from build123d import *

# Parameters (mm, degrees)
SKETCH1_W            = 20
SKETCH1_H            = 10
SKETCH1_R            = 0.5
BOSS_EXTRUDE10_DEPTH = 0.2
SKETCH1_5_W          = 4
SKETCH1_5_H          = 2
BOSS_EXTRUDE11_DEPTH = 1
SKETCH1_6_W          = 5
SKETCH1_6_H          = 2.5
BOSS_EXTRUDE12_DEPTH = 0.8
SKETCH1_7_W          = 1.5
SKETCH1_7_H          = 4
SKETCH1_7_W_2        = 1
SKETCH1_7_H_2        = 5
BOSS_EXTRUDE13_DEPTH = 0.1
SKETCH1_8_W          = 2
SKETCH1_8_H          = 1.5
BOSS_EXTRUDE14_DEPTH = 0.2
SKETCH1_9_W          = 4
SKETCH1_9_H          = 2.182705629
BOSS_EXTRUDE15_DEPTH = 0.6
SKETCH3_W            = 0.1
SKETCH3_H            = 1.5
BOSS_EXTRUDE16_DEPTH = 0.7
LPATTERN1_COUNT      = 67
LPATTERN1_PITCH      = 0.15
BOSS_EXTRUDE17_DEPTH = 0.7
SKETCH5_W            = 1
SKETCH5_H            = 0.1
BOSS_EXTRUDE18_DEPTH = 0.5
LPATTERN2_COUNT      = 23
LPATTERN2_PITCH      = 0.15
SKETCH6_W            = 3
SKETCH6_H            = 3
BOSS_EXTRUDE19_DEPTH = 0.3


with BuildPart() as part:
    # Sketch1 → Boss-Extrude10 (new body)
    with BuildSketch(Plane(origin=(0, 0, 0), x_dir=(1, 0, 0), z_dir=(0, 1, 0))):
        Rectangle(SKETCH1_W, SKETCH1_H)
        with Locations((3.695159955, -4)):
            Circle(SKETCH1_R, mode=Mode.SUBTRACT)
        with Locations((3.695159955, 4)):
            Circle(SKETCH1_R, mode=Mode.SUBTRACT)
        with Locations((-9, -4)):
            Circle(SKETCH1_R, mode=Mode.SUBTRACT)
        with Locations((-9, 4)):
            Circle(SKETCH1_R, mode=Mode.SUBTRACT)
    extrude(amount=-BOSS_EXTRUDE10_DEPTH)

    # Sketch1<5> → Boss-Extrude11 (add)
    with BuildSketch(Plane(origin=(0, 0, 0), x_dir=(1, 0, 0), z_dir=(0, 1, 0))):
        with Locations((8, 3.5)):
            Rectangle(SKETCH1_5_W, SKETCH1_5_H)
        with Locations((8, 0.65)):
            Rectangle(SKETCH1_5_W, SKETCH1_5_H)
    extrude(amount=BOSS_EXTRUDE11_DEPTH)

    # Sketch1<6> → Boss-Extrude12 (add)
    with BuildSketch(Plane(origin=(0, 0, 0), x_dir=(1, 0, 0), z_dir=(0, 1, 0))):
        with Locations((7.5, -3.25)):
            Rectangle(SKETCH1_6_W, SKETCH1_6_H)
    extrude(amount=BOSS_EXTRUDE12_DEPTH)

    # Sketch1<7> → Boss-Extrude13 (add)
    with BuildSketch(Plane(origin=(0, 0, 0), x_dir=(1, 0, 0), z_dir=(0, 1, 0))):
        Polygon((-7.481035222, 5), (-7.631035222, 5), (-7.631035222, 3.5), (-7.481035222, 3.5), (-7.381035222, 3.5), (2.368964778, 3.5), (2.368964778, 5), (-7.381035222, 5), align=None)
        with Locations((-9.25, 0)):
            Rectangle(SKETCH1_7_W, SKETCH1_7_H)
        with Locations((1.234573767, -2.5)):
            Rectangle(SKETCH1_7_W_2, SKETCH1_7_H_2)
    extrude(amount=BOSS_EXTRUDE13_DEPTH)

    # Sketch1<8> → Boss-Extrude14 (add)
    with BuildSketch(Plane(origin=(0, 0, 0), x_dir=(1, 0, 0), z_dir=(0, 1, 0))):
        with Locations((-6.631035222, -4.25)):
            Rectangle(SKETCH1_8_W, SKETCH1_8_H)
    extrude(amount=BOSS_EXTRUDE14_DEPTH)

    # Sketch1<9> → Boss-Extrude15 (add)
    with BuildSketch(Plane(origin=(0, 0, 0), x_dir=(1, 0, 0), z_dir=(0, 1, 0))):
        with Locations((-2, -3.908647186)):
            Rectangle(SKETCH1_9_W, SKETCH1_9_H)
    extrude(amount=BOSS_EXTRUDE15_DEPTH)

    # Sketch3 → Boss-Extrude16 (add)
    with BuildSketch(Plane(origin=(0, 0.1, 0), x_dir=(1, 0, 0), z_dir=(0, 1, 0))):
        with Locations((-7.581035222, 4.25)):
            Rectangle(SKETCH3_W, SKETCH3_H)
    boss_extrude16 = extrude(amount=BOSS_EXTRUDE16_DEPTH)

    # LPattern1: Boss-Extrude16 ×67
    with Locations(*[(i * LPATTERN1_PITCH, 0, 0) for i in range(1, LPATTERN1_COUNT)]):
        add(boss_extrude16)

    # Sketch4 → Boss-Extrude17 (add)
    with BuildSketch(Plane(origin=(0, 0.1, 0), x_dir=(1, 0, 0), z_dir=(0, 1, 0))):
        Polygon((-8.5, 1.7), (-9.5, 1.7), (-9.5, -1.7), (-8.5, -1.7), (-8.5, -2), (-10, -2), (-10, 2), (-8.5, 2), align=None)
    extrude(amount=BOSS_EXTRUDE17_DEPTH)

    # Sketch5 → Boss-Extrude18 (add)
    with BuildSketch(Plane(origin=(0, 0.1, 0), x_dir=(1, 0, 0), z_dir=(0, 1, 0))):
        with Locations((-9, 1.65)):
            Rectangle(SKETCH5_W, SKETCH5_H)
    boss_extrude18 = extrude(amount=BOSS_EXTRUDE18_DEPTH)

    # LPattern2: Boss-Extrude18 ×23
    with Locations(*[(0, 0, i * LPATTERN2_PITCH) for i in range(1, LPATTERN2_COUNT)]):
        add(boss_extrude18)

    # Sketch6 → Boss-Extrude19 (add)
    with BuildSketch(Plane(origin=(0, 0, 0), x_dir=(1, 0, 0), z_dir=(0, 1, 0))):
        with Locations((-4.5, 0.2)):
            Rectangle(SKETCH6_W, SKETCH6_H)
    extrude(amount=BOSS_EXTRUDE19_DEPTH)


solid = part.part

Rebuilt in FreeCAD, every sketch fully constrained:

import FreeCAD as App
import Part
import Sketcher

doc = App.newDocument("Part")
params = doc.addObject("Spreadsheet::Sheet", "Params")
for row, (alias, value) in enumerate([
    ("sketch1_diameter", "1 mm"),
    ("sketch1_width", "20 mm"),
    ("sketch1_height", "10 mm"),
    ("pad1_length", "0.2 mm"),
    ("sketch2_width", "4 mm"),
    ("sketch2_height", "2 mm"),
    ("pad2_length", "1 mm"),
    ("sketch3_width", "5 mm"),
    ("sketch3_height", "2.5 mm"),
    ("pad3_length", "0.8 mm"),
    ("sketch4_width", "10 mm"),
    ("sketch4_width2", "1 mm"),
    ("sketch4_height", "4 mm"),
    ("sketch4_height2", "5 mm"),
    ("sketch4_width3", "1.5 mm"),
    ("pad4_length", "0.1 mm"),
    ("sketch5_width", "2 mm"),
    ("sketch5_height", "1.5 mm"),
    ("pad5_length", "0.2 mm"),
    ("sketch6_width", "4 mm"),
    ("pad6_length", "0.6 mm"),
    ("sketch7_width", "0.1 mm"),
    ("sketch7_height", "1.5 mm"),
    ("pad7_length", "0.7 mm"),
    ("linearpattern_pitch", "0.15 mm"),
    ("sketch8_width", "1 mm"),
    ("sketch8_height", "4 mm"),
    ("sketch8_width2", "1.5 mm"),
    ("sketch8_height2", "0.3 mm"),
    ("pad8_length", "0.7 mm"),
    ("sketch9_width", "1 mm"),
    ("sketch9_height", "0.1 mm"),
    ("pad9_length", "0.5 mm"),
    ("linearpattern2_pitch", "0.15 mm"),
    ("sketch10_width", "3 mm"),
    ("pad10_length", "0.3 mm"),
], start=1):
    params.set(f"A{row}", alias)
    params.set(f"B{row}", "=" + value)
    params.setAlias(f"B{row}", alias)

body = doc.addObject("PartDesign::Body", "Body")

# Sketch on XZ plane
sketch1 = body.newObject("Sketcher::SketchObject", "Sketch")
sketch1.AttachmentSupport = (doc.getObject("XZ_Plane"), [""])
sketch1.MapMode = "FlatFace"
sketch1.addGeometry([
    Part.LineSegment(App.Vector(-10, -5, 0), App.Vector(-10, 5, 0)),  # 0
    Part.LineSegment(App.Vector(-10, 5, 0), App.Vector(10, 5, 0)),  # 1
    Part.LineSegment(App.Vector(10, 5, 0), App.Vector(10, -5, 0)),  # 2
    Part.LineSegment(App.Vector(10, -5, 0), App.Vector(-10, -5, 0)),  # 3
    Part.Circle(App.Vector(-9, 4, 0), App.Vector(0, 0, 1), 0.5),  # 4
    Part.Circle(App.Vector(3.69516, 4, 0), App.Vector(0, 0, 1), 0.5),  # 5
    Part.Circle(App.Vector(-9, -4, 0), App.Vector(0, 0, 1), 0.5),  # 6
    Part.Circle(App.Vector(3.69516, -4, 0), App.Vector(0, 0, 1), 0.5),  # 7
], False)
sketch1.addConstraint([
    Sketcher.Constraint("Coincident", 0, 2, 1, 1),
    Sketcher.Constraint("Coincident", 1, 2, 2, 1),
    Sketcher.Constraint("Coincident", 2, 2, 3, 1),
    Sketcher.Constraint("Coincident", 3, 2, 0, 1),
    Sketcher.Constraint("Vertical", 0),
    Sketcher.Constraint("Horizontal", 1),
    Sketcher.Constraint("Vertical", 2),
    Sketcher.Constraint("Horizontal", 3),
    Sketcher.Constraint("Equal", 4, 5),
    Sketcher.Constraint("Equal", 5, 6),
    Sketcher.Constraint("Equal", 6, 7),
    Sketcher.Constraint("Symmetric", 0, 2, 2, 2, -1, 1),
    Sketcher.Constraint("Symmetric", 4, 3, 6, 3, -1),
    Sketcher.Constraint("Symmetric", 5, 3, 7, 3, -1),
    Sketcher.Constraint("Horizontal", 4, 3, 5, 3),
    Sketcher.Constraint("Diameter", 4, 1.0),
    Sketcher.Constraint("DistanceX", 1, 1, 1, 2, 20.0),
    Sketcher.Constraint("DistanceY", 0, 1, 0, 2, 10.0),
    Sketcher.Constraint("DistanceX", 4, 3, -1, 1, 9.0),
    Sketcher.Constraint("DistanceY", -1, 1, 4, 3, 4.0),
    Sketcher.Constraint("DistanceX", -1, 1, 5, 3, 3.69516),
])
sketch1.setExpression("Constraints[15]", "Params.sketch1_diameter")
sketch1.setExpression("Constraints[16]", "Params.sketch1_width")
sketch1.setExpression("Constraints[17]", "Params.sketch1_height")
pad1 = body.newObject("PartDesign::Pad", "Pad")
pad1.Profile = sketch1
pad1.setExpression("Length", "Params.pad1_length")

# Sketch on XZ plane
sketch2 = body.newObject("Sketcher::SketchObject", "Sketch001")
sketch2.AttachmentSupport = (doc.getObject("XZ_Plane"), [""])
sketch2.MapMode = "FlatFace"
sketch2.addGeometry([
    Part.LineSegment(App.Vector(6, -4.5, 0), App.Vector(6, -2.5, 0)),  # 0
    Part.LineSegment(App.Vector(6, -2.5, 0), App.Vector(10, -2.5, 0)),  # 1
    Part.LineSegment(App.Vector(10, -2.5, 0), App.Vector(10, -4.5, 0)),  # 2
    Part.LineSegment(App.Vector(10, -4.5, 0), App.Vector(6, -4.5, 0)),  # 3
    Part.LineSegment(App.Vector(6, -1.65, 0), App.Vector(6, 0.35, 0)),  # 4
    Part.LineSegment(App.Vector(6, 0.35, 0), App.Vector(10, 0.35, 0)),  # 5
    Part.LineSegment(App.Vector(10, 0.35, 0), App.Vector(10, -1.65, 0)),  # 6
    Part.LineSegment(App.Vector(10, -1.65, 0), App.Vector(6, -1.65, 0)),  # 7
], False)
sketch2.addConstraint([
    Sketcher.Constraint("Coincident", 0, 2, 1, 1),
    Sketcher.Constraint("Coincident", 1, 2, 2, 1),
    Sketcher.Constraint("Coincident", 2, 2, 3, 1),
    Sketcher.Constraint("Coincident", 3, 2, 0, 1),
    Sketcher.Constraint("Coincident", 4, 2, 5, 1),
    Sketcher.Constraint("Coincident", 5, 2, 6, 1),
    Sketcher.Constraint("Coincident", 6, 2, 7, 1),
    Sketcher.Constraint("Coincident", 7, 2, 4, 1),
    Sketcher.Constraint("Vertical", 0),
    Sketcher.Constraint("Horizontal", 1),
    Sketcher.Constraint("Vertical", 2),
    Sketcher.Constraint("Horizontal", 3),
    Sketcher.Constraint("Vertical", 4),
    Sketcher.Constraint("Horizontal", 5),
    Sketcher.Constraint("Vertical", 6),
    Sketcher.Constraint("Horizontal", 7),
    Sketcher.Constraint("Vertical", 3, 2, 4, 2),
    Sketcher.Constraint("Vertical", 2, 2, 5, 2),
    Sketcher.Constraint("Equal", 2, 4),
    Sketcher.Constraint("DistanceX", 1, 1, 1, 2, 4.0),
    Sketcher.Constraint("DistanceY", 0, 1, 0, 2, 2.0),
    Sketcher.Constraint("DistanceX", -1, 1, 0, 2, 6.0),
    Sketcher.Constraint("DistanceY", 0, 2, -1, 1, 2.5),
    Sketcher.Constraint("DistanceY", -1, 1, 4, 2, 0.35),
])
sketch2.setExpression("Constraints[19]", "Params.sketch2_width")
sketch2.setExpression("Constraints[20]", "Params.sketch2_height")
pad2 = body.newObject("PartDesign::Pad", "Pad001")
pad2.Profile = sketch2
pad2.setExpression("Length", "Params.pad2_length")
pad2.Reversed = True

# Sketch on XZ plane
sketch3 = body.newObject("Sketcher::SketchObject", "Sketch002")
sketch3.AttachmentSupport = (doc.getObject("XZ_Plane"), [""])
sketch3.MapMode = "FlatFace"
sketch3.addGeometry([
    Part.LineSegment(App.Vector(5, 2, 0), App.Vector(5, 4.5, 0)),
    Part.LineSegment(App.Vector(5, 4.5, 0), App.Vector(10, 4.5, 0)),
    Part.LineSegment(App.Vector(10, 4.5, 0), App.Vector(10, 2, 0)),
    Part.LineSegment(App.Vector(10, 2, 0), App.Vector(5, 2, 0)),
], False)
sketch3.addConstraint([
    Sketcher.Constraint("Coincident", 0, 2, 1, 1),
    Sketcher.Constraint("Coincident", 1, 2, 2, 1),
    Sketcher.Constraint("Coincident", 2, 2, 3, 1),
    Sketcher.Constraint("Coincident", 3, 2, 0, 1),
    Sketcher.Constraint("Vertical", 0),
    Sketcher.Constraint("Horizontal", 1),
    Sketcher.Constraint("Vertical", 2),
    Sketcher.Constraint("Horizontal", 3),
    Sketcher.Constraint("DistanceX", 1, 1, 1, 2, 5.0),
    Sketcher.Constraint("DistanceY", 0, 1, 0, 2, 2.5),
    Sketcher.Constraint("DistanceX", -1, 1, 0, 2, 5.0),
    Sketcher.Constraint("DistanceY", -1, 1, 2, 2, 2.0),
])
sketch3.setExpression("Constraints[8]", "Params.sketch3_width")
sketch3.setExpression("Constraints[9]", "Params.sketch3_height")
pad3 = body.newObject("PartDesign::Pad", "Pad002")
pad3.Profile = sketch3
pad3.setExpression("Length", "Params.pad3_length")
pad3.Reversed = True

# Sketch on XZ plane
sketch4 = body.newObject("Sketcher::SketchObject", "Sketch003")
sketch4.AttachmentSupport = (doc.getObject("XZ_Plane"), [""])
sketch4.MapMode = "FlatFace"
sketch4.addGeometry([
    Part.LineSegment(App.Vector(-7.631035, -5, 0), App.Vector(-7.631035, -3.5, 0)),  # 0
    Part.LineSegment(App.Vector(-7.631035, -3.5, 0), App.Vector(2.368965, -3.5, 0)),  # 1
    Part.LineSegment(App.Vector(2.368965, -3.5, 0), App.Vector(2.368965, -5, 0)),  # 2
    Part.LineSegment(App.Vector(2.368965, -5, 0), App.Vector(-7.631035, -5, 0)),  # 3
    Part.LineSegment(App.Vector(-10, -2, 0), App.Vector(-10, 2, 0)),  # 4
    Part.LineSegment(App.Vector(-10, 2, 0), App.Vector(-8.5, 2, 0)),  # 5
    Part.LineSegment(App.Vector(-8.5, 2, 0), App.Vector(-8.5, -2, 0)),  # 6
    Part.LineSegment(App.Vector(-8.5, -2, 0), App.Vector(-10, -2, 0)),  # 7
    Part.LineSegment(App.Vector(0.734574, 0, 0), App.Vector(0.734574, 5, 0)),  # 8
    Part.LineSegment(App.Vector(0.734574, 5, 0), App.Vector(1.734574, 5, 0)),  # 9
    Part.LineSegment(App.Vector(1.734574, 5, 0), App.Vector(1.734574, 0, 0)),  # 10
    Part.LineSegment(App.Vector(1.734574, 0, 0), App.Vector(0.734574, 0, 0)),  # 11
], False)
sketch4.addConstraint([
    Sketcher.Constraint("Coincident", 0, 2, 1, 1),
    Sketcher.Constraint("Coincident", 1, 2, 2, 1),
    Sketcher.Constraint("Coincident", 2, 2, 3, 1),
    Sketcher.Constraint("Coincident", 3, 2, 0, 1),
    Sketcher.Constraint("Coincident", 4, 2, 5, 1),
    Sketcher.Constraint("Coincident", 5, 2, 6, 1),
    Sketcher.Constraint("Coincident", 6, 2, 7, 1),
    Sketcher.Constraint("Coincident", 7, 2, 4, 1),
    Sketcher.Constraint("Coincident", 8, 2, 9, 1),
    Sketcher.Constraint("Coincident", 9, 2, 10, 1),
    Sketcher.Constraint("Coincident", 10, 2, 11, 1),
    Sketcher.Constraint("Coincident", 11, 2, 8, 1),
    Sketcher.Constraint("Vertical", 0),
    Sketcher.Constraint("Horizontal", 1),
    Sketcher.Constraint("Vertical", 2),
    Sketcher.Constraint("Horizontal", 3),
    Sketcher.Constraint("Vertical", 4),
    Sketcher.Constraint("Horizontal", 5),
    Sketcher.Constraint("Vertical", 6),
    Sketcher.Constraint("Horizontal", 7),
    Sketcher.Constraint("Vertical", 8),
    Sketcher.Constraint("Horizontal", 9),
    Sketcher.Constraint("Vertical", 10),
    Sketcher.Constraint("Horizontal", 11),
    Sketcher.Constraint("PointOnObject", 10, 2, -1),
    Sketcher.Constraint("Equal", 7, 0),
    Sketcher.Constraint("DistanceX", 1, 1, 1, 2, 10.0),
    Sketcher.Constraint("DistanceX", 9, 1, 9, 2, 1.0),
    Sketcher.Constraint("DistanceY", 4, 1, 4, 2, 4.0),
    Sketcher.Constraint("DistanceY", 8, 1, 8, 2, 5.0),
    Sketcher.Constraint("DistanceX", 5, 1, 5, 2, 1.5),
    Sketcher.Constraint("DistanceY", 2, 2, -1, 1, 5.0),
    Sketcher.Constraint("DistanceX", 4, 2, -1, 1, 10.0),
    Sketcher.Constraint("DistanceY", -1, 1, 4, 2, 2.0),
    Sketcher.Constraint("DistanceX", 8, 2, 1, 2, 1.634391),
    Sketcher.Constraint("DistanceX", 0, 2, -1, 1, 7.631035),
])
sketch4.setExpression("Constraints[26]", "Params.sketch4_width")
sketch4.setExpression("Constraints[27]", "Params.sketch4_width2")
sketch4.setExpression("Constraints[28]", "Params.sketch4_height")
sketch4.setExpression("Constraints[29]", "Params.sketch4_height2")
sketch4.setExpression("Constraints[30]", "Params.sketch4_width3")
pad4 = body.newObject("PartDesign::Pad", "Pad003")
pad4.Profile = sketch4
pad4.setExpression("Length", "Params.pad4_length")
pad4.Reversed = True

# Sketch on XZ plane
sketch5 = body.newObject("Sketcher::SketchObject", "Sketch004")
sketch5.AttachmentSupport = (doc.getObject("XZ_Plane"), [""])
sketch5.MapMode = "FlatFace"
sketch5.addGeometry([
    Part.LineSegment(App.Vector(-7.631035, 3.5, 0), App.Vector(-7.631035, 5, 0)),
    Part.LineSegment(App.Vector(-7.631035, 5, 0), App.Vector(-5.631035, 5, 0)),
    Part.LineSegment(App.Vector(-5.631035, 5, 0), App.Vector(-5.631035, 3.5, 0)),
    Part.LineSegment(App.Vector(-5.631035, 3.5, 0), App.Vector(-7.631035, 3.5, 0)),
], False)
sketch5.addConstraint([
    Sketcher.Constraint("Coincident", 0, 2, 1, 1),
    Sketcher.Constraint("Coincident", 1, 2, 2, 1),
    Sketcher.Constraint("Coincident", 2, 2, 3, 1),
    Sketcher.Constraint("Coincident", 3, 2, 0, 1),
    Sketcher.Constraint("Vertical", 0),
    Sketcher.Constraint("Horizontal", 1),
    Sketcher.Constraint("Vertical", 2),
    Sketcher.Constraint("Horizontal", 3),
    Sketcher.Constraint("DistanceX", 1, 1, 1, 2, 2.0),
    Sketcher.Constraint("DistanceY", 0, 1, 0, 2, 1.5),
    Sketcher.Constraint("DistanceY", -1, 1, 0, 2, 5.0),
    Sketcher.Constraint("DistanceX", 0, 2, -1, 1, 7.631035),
])
sketch5.setExpression("Constraints[8]", "Params.sketch5_width")
sketch5.setExpression("Constraints[9]", "Params.sketch5_height")
pad5 = body.newObject("PartDesign::Pad", "Pad004")
pad5.Profile = sketch5
pad5.setExpression("Length", "Params.pad5_length")
pad5.Reversed = True

# Sketch on XZ plane
sketch6 = body.newObject("Sketcher::SketchObject", "Sketch005")
sketch6.AttachmentSupport = (doc.getObject("XZ_Plane"), [""])
sketch6.MapMode = "FlatFace"
sketch6.addGeometry([
    Part.LineSegment(App.Vector(-4, 2.817294, 0), App.Vector(-4, 5, 0)),
    Part.LineSegment(App.Vector(-4, 5, 0), App.Vector(0, 5, 0)),
    Part.LineSegment(App.Vector(0, 5, 0), App.Vector(0, 2.817294, 0)),
    Part.LineSegment(App.Vector(0, 2.817294, 0), App.Vector(-4, 2.817294, 0)),
], False)
sketch6.addConstraint([
    Sketcher.Constraint("Coincident", 0, 2, 1, 1),
    Sketcher.Constraint("Coincident", 1, 2, 2, 1),
    Sketcher.Constraint("Coincident", 2, 2, 3, 1),
    Sketcher.Constraint("Coincident", 3, 2, 0, 1),
    Sketcher.Constraint("Vertical", 0),
    Sketcher.Constraint("Horizontal", 1),
    Sketcher.Constraint("Vertical", 2),
    Sketcher.Constraint("Horizontal", 3),
    Sketcher.Constraint("PointOnObject", 1, 2, -2),
    Sketcher.Constraint("DistanceX", 1, 1, 1, 2, 4.0),
    Sketcher.Constraint("DistanceY", -1, 1, 0, 2, 5.0),
    Sketcher.Constraint("DistanceY", 0, 1, 0, 2, 2.182706),
])
sketch6.setExpression("Constraints[9]", "Params.sketch6_width")
pad6 = body.newObject("PartDesign::Pad", "Pad005")
pad6.Profile = sketch6
pad6.setExpression("Length", "Params.pad6_length")
pad6.Reversed = True

# Sketch on XZ plane
sketch7 = body.newObject("Sketcher::SketchObject", "Sketch006")
sketch7.AttachmentSupport = (doc.getObject("XZ_Plane"), [""])
sketch7.MapMode = "FlatFace"
sketch7.AttachmentOffset = App.Placement(App.Vector(0, 0, -0.1), App.Rotation())
sketch7.addGeometry([
    Part.LineSegment(App.Vector(-7.631035, -5, 0), App.Vector(-7.631035, -3.5, 0)),
    Part.LineSegment(App.Vector(-7.631035, -3.5, 0), App.Vector(-7.531035, -3.5, 0)),
    Part.LineSegment(App.Vector(-7.531035, -3.5, 0), App.Vector(-7.531035, -5, 0)),
    Part.LineSegment(App.Vector(-7.531035, -5, 0), App.Vector(-7.631035, -5, 0)),
], False)
sketch7.addConstraint([
    Sketcher.Constraint("Coincident", 0, 2, 1, 1),
    Sketcher.Constraint("Coincident", 1, 2, 2, 1),
    Sketcher.Constraint("Coincident", 2, 2, 3, 1),
    Sketcher.Constraint("Coincident", 3, 2, 0, 1),
    Sketcher.Constraint("Vertical", 0),
    Sketcher.Constraint("Horizontal", 1),
    Sketcher.Constraint("Vertical", 2),
    Sketcher.Constraint("Horizontal", 3),
    Sketcher.Constraint("DistanceX", 1, 1, 1, 2, 0.1),
    Sketcher.Constraint("DistanceY", 0, 1, 0, 2, 1.5),
    Sketcher.Constraint("DistanceY", 2, 2, -1, 1, 5.0),
    Sketcher.Constraint("DistanceX", 0, 2, -1, 1, 7.631035),
])
sketch7.setExpression("Constraints[8]", "Params.sketch7_width")
sketch7.setExpression("Constraints[9]", "Params.sketch7_height")
pad7 = body.newObject("PartDesign::Pad", "Pad006")
pad7.Profile = sketch7
pad7.setExpression("Length", "Params.pad7_length")
pad7.Reversed = True
doc.recompute()

linearpattern = body.newObject("PartDesign::LinearPattern", "LinearPattern")
linearpattern.Originals = [pad7]
linearpattern.Direction = (doc.getObject("X_Axis"), [""])
linearpattern.Mode = "offset"
linearpattern.setExpression("Offset", "Params.linearpattern_pitch")
linearpattern.Occurrences = 67
body.Tip = linearpattern

# Sketch on XZ plane
sketch8 = body.newObject("Sketcher::SketchObject", "Sketch007")
sketch8.AttachmentSupport = (doc.getObject("XZ_Plane"), [""])
sketch8.MapMode = "FlatFace"
sketch8.AttachmentOffset = App.Placement(App.Vector(0, 0, -0.1), App.Rotation())
sketch8.addGeometry([
    Part.LineSegment(App.Vector(-9.5, -1.7, 0), App.Vector(-8.5, -1.7, 0)),  # 0
    Part.LineSegment(App.Vector(-8.5, -1.7, 0), App.Vector(-8.5, -2, 0)),  # 1
    Part.LineSegment(App.Vector(-8.5, -2, 0), App.Vector(-10, -2, 0)),  # 2
    Part.LineSegment(App.Vector(-10, -2, 0), App.Vector(-10, 2, 0)),  # 3
    Part.LineSegment(App.Vector(-10, 2, 0), App.Vector(-8.5, 2, 0)),  # 4
    Part.LineSegment(App.Vector(-8.5, 2, 0), App.Vector(-8.5, 1.7, 0)),  # 5
    Part.LineSegment(App.Vector(-8.5, 1.7, 0), App.Vector(-9.5, 1.7, 0)),  # 6
    Part.LineSegment(App.Vector(-9.5, 1.7, 0), App.Vector(-9.5, -1.7, 0)),  # 7
], False)
sketch8.addConstraint([
    Sketcher.Constraint("Coincident", 0, 2, 1, 1),
    Sketcher.Constraint("Coincident", 1, 2, 2, 1),
    Sketcher.Constraint("Coincident", 2, 2, 3, 1),
    Sketcher.Constraint("Coincident", 3, 2, 4, 1),
    Sketcher.Constraint("Coincident", 4, 2, 5, 1),
    Sketcher.Constraint("Coincident", 5, 2, 6, 1),
    Sketcher.Constraint("Coincident", 6, 2, 7, 1),
    Sketcher.Constraint("Coincident", 7, 2, 0, 1),
    Sketcher.Constraint("Horizontal", 0),
    Sketcher.Constraint("Vertical", 1),
    Sketcher.Constraint("Horizontal", 2),
    Sketcher.Constraint("Vertical", 3),
    Sketcher.Constraint("Horizontal", 4),
    Sketcher.Constraint("Vertical", 5),
    Sketcher.Constraint("Horizontal", 6),
    Sketcher.Constraint("Vertical", 7),
    Sketcher.Constraint("Symmetric", 1, 2, 4, 2, -1),
    Sketcher.Constraint("Equal", 1, 5),
    Sketcher.Constraint("DistanceX", 0, 1, 0, 2, 1.0),
    Sketcher.Constraint("DistanceY", 3, 1, 3, 2, 4.0),
    Sketcher.Constraint("DistanceX", 2, 2, 2, 1, 1.5),
    Sketcher.Constraint("DistanceY", 1, 2, 1, 1, 0.3),
    Sketcher.Constraint("DistanceX", 2, 2, -1, 1, 10.0),
])
sketch8.setExpression("Constraints[18]", "Params.sketch8_width")
sketch8.setExpression("Constraints[19]", "Params.sketch8_height")
sketch8.setExpression("Constraints[20]", "Params.sketch8_width2")
sketch8.setExpression("Constraints[21]", "Params.sketch8_height2")
pad8 = body.newObject("PartDesign::Pad", "Pad007")
pad8.Profile = sketch8
pad8.setExpression("Length", "Params.pad8_length")
pad8.Reversed = True

# Sketch on XZ plane
sketch9 = body.newObject("Sketcher::SketchObject", "Sketch008")
sketch9.AttachmentSupport = (doc.getObject("XZ_Plane"), [""])
sketch9.MapMode = "FlatFace"
sketch9.AttachmentOffset = App.Placement(App.Vector(0, 0, -0.1), App.Rotation())
sketch9.addGeometry([
    Part.LineSegment(App.Vector(-9.5, -1.7, 0), App.Vector(-9.5, -1.6, 0)),
    Part.LineSegment(App.Vector(-9.5, -1.6, 0), App.Vector(-8.5, -1.6, 0)),
    Part.LineSegment(App.Vector(-8.5, -1.6, 0), App.Vector(-8.5, -1.7, 0)),
    Part.LineSegment(App.Vector(-8.5, -1.7, 0), App.Vector(-9.5, -1.7, 0)),
], False)
sketch9.addConstraint([
    Sketcher.Constraint("Coincident", 0, 2, 1, 1),
    Sketcher.Constraint("Coincident", 1, 2, 2, 1),
    Sketcher.Constraint("Coincident", 2, 2, 3, 1),
    Sketcher.Constraint("Coincident", 3, 2, 0, 1),
    Sketcher.Constraint("Vertical", 0),
    Sketcher.Constraint("Horizontal", 1),
    Sketcher.Constraint("Vertical", 2),
    Sketcher.Constraint("Horizontal", 3),
    Sketcher.Constraint("DistanceX", 1, 1, 1, 2, 1.0),
    Sketcher.Constraint("DistanceY", 0, 1, 0, 2, 0.1),
    Sketcher.Constraint("DistanceX", 0, 2, -1, 1, 9.5),
    Sketcher.Constraint("DistanceY", 0, 2, -1, 1, 1.6),
])
sketch9.setExpression("Constraints[8]", "Params.sketch9_width")
sketch9.setExpression("Constraints[9]", "Params.sketch9_height")
pad9 = body.newObject("PartDesign::Pad", "Pad008")
pad9.Profile = sketch9
pad9.setExpression("Length", "Params.pad9_length")
pad9.Reversed = True
doc.recompute()

linearpattern2 = body.newObject("PartDesign::LinearPattern", "LinearPattern001")
linearpattern2.Originals = [pad9]
linearpattern2.Direction = (doc.getObject("Z_Axis"), [""])
linearpattern2.Mode = "offset"
linearpattern2.setExpression("Offset", "Params.linearpattern2_pitch")
linearpattern2.Occurrences = 23
body.Tip = linearpattern2

# Sketch on XZ plane
sketch10 = body.newObject("Sketcher::SketchObject", "Sketch009")
sketch10.AttachmentSupport = (doc.getObject("XZ_Plane"), [""])
sketch10.MapMode = "FlatFace"
sketch10.addGeometry([
    Part.LineSegment(App.Vector(-6, -1.7, 0), App.Vector(-6, 1.3, 0)),
    Part.LineSegment(App.Vector(-6, 1.3, 0), App.Vector(-3, 1.3, 0)),
    Part.LineSegment(App.Vector(-3, 1.3, 0), App.Vector(-3, -1.7, 0)),
    Part.LineSegment(App.Vector(-3, -1.7, 0), App.Vector(-6, -1.7, 0)),
], False)
sketch10.addConstraint([
    Sketcher.Constraint("Coincident", 0, 2, 1, 1),
    Sketcher.Constraint("Coincident", 1, 2, 2, 1),
    Sketcher.Constraint("Coincident", 2, 2, 3, 1),
    Sketcher.Constraint("Coincident", 3, 2, 0, 1),
    Sketcher.Constraint("Vertical", 0),
    Sketcher.Constraint("Horizontal", 1),
    Sketcher.Constraint("Vertical", 2),
    Sketcher.Constraint("Horizontal", 3),
    Sketcher.Constraint("Equal", 3, 0),
    Sketcher.Constraint("DistanceX", 1, 1, 1, 2, 3.0),
    Sketcher.Constraint("DistanceX", 0, 2, -1, 1, 6.0),
    Sketcher.Constraint("DistanceY", -1, 1, 0, 2, 1.3),
])
sketch10.setExpression("Constraints[9]", "Params.sketch10_width")
pad10 = body.newObject("PartDesign::Pad", "Pad009")
pad10.Profile = sketch10
pad10.setExpression("Length", "Params.pad10_length")
pad10.Reversed = True

doc.recompute()
